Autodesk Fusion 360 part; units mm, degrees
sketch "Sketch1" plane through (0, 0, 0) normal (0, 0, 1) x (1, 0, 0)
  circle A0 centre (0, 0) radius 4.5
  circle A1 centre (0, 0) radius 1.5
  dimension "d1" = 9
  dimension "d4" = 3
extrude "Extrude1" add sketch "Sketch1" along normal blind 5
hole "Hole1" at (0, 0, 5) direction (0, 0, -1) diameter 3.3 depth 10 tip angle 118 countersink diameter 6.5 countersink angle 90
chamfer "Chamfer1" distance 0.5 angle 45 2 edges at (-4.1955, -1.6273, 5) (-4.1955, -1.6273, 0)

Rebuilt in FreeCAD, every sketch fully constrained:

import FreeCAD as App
import Part
import Sketcher

V = App.Vector
Q = App.Units.Quantity


def edges_at(feature, points):
    """Names of the edges that pass closest to the given points."""
    edges = feature.Shape.Edges
    near = lambda p: min(range(len(edges)), key=lambda i: edges[i].distToShape(Part.Vertex(*p))[0])
    return sorted({f"Edge{near(p) + 1}" for p in points})

doc = App.newDocument("Part")
params = doc.addObject("Spreadsheet::Sheet", "Params")
for row, (alias, value) in enumerate([
    ("sketch1_diameter", "9 mm"),
    ("sketch1_diameter2", "3 mm"),
    ("pad1_length", "5 mm"),
    ("sketch2_diameter", "3.3 mm"),
    ("hole_diameter", "3.3 mm"),
    ("hole_depth", "10 mm"),
    ("hole_csink_diameter", "6.5 mm"),
    ("chamfer_size", "0.5 mm"),
], start=1):
    params.set(f"A{row}", alias)
    params.set(f"B{row}", "=" + value)
    params.setAlias(f"B{row}", alias)

body = doc.addObject("PartDesign::Body", "Body")

sketch1 = doc.addObject("Sketcher::SketchObject", "Sketch")
body.addObject(sketch1)
sketch1.AttachmentSupport = (doc.XY_Plane, [""])
sketch1.MapMode = "FlatFace"
sketch1.addGeometry([
    Part.Circle(V(0, 0, 0), V(0, 0, 1), 4.5),
    Part.Circle(V(0, 0, 0), V(0, 0, 1), 1.5),
], False)
sketch1.addConstraint([
    Sketcher.Constraint("Coincident", 0, 3, -1, 1),
    Sketcher.Constraint("Coincident", 1, 3, -1, 1),
    Sketcher.Constraint("Diameter", 0, Q("9 mm")),
    Sketcher.Constraint("Diameter", 1, Q("3 mm")),
])
sketch1.setExpression("Constraints[2]", "Params.sketch1_diameter")
sketch1.setExpression("Constraints[3]", "Params.sketch1_diameter2")
pad1 = doc.addObject("PartDesign::Pad", "Pad")
body.addObject(pad1)
pad1.Profile = sketch1
pad1.setExpression("Length", "Params.pad1_length")

sketch2 = doc.addObject("Sketcher::SketchObject", "Sketch001")
body.addObject(sketch2)
sketch2.AttachmentSupport = (doc.XY_Plane, [""])
sketch2.MapMode = "FlatFace"
sketch2.AttachmentOffset = App.Placement(V(0, 0, 5), App.Rotation())
sketch2.addGeometry(Part.Circle(V(0, 0, 0), V(0, 0, 1), 1.6), False)
sketch2.addConstraint([
    Sketcher.Constraint("Coincident", 0, 3, -1, 1),
    Sketcher.Constraint("Diameter", 0, Q("3.3 mm")),
])
sketch2.setExpression("Constraints[1]", "Params.sketch2_diameter")
doc.recompute()
hole = doc.addObject("PartDesign::Hole", "Hole")
body.addObject(hole)
hole.Profile = sketch2
hole.ThreadType = "None"
hole.setExpression("Diameter", "Params.hole_diameter")
hole.DepthType = "Dimension"
hole.setExpression("Depth", "Params.hole_depth")
hole.DrillPoint = "Angled"
hole.DrillPointAngle = 118
hole.HoleCutType = "Countersink"
hole.setExpression("HoleCutDiameter", "Params.hole_csink_diameter")
hole.HoleCutCountersinkAngle = 90
doc.recompute()

chamfer = doc.addObject("PartDesign::Chamfer", "Chamfer")
body.addObject(chamfer)
chamfer.Base = (hole, edges_at(hole, [(-4.196, -1.627, 5), (-4.196, -1.627, 0)]))
chamfer.setExpression("Size", "Params.chamfer_size")

doc.recompute()
